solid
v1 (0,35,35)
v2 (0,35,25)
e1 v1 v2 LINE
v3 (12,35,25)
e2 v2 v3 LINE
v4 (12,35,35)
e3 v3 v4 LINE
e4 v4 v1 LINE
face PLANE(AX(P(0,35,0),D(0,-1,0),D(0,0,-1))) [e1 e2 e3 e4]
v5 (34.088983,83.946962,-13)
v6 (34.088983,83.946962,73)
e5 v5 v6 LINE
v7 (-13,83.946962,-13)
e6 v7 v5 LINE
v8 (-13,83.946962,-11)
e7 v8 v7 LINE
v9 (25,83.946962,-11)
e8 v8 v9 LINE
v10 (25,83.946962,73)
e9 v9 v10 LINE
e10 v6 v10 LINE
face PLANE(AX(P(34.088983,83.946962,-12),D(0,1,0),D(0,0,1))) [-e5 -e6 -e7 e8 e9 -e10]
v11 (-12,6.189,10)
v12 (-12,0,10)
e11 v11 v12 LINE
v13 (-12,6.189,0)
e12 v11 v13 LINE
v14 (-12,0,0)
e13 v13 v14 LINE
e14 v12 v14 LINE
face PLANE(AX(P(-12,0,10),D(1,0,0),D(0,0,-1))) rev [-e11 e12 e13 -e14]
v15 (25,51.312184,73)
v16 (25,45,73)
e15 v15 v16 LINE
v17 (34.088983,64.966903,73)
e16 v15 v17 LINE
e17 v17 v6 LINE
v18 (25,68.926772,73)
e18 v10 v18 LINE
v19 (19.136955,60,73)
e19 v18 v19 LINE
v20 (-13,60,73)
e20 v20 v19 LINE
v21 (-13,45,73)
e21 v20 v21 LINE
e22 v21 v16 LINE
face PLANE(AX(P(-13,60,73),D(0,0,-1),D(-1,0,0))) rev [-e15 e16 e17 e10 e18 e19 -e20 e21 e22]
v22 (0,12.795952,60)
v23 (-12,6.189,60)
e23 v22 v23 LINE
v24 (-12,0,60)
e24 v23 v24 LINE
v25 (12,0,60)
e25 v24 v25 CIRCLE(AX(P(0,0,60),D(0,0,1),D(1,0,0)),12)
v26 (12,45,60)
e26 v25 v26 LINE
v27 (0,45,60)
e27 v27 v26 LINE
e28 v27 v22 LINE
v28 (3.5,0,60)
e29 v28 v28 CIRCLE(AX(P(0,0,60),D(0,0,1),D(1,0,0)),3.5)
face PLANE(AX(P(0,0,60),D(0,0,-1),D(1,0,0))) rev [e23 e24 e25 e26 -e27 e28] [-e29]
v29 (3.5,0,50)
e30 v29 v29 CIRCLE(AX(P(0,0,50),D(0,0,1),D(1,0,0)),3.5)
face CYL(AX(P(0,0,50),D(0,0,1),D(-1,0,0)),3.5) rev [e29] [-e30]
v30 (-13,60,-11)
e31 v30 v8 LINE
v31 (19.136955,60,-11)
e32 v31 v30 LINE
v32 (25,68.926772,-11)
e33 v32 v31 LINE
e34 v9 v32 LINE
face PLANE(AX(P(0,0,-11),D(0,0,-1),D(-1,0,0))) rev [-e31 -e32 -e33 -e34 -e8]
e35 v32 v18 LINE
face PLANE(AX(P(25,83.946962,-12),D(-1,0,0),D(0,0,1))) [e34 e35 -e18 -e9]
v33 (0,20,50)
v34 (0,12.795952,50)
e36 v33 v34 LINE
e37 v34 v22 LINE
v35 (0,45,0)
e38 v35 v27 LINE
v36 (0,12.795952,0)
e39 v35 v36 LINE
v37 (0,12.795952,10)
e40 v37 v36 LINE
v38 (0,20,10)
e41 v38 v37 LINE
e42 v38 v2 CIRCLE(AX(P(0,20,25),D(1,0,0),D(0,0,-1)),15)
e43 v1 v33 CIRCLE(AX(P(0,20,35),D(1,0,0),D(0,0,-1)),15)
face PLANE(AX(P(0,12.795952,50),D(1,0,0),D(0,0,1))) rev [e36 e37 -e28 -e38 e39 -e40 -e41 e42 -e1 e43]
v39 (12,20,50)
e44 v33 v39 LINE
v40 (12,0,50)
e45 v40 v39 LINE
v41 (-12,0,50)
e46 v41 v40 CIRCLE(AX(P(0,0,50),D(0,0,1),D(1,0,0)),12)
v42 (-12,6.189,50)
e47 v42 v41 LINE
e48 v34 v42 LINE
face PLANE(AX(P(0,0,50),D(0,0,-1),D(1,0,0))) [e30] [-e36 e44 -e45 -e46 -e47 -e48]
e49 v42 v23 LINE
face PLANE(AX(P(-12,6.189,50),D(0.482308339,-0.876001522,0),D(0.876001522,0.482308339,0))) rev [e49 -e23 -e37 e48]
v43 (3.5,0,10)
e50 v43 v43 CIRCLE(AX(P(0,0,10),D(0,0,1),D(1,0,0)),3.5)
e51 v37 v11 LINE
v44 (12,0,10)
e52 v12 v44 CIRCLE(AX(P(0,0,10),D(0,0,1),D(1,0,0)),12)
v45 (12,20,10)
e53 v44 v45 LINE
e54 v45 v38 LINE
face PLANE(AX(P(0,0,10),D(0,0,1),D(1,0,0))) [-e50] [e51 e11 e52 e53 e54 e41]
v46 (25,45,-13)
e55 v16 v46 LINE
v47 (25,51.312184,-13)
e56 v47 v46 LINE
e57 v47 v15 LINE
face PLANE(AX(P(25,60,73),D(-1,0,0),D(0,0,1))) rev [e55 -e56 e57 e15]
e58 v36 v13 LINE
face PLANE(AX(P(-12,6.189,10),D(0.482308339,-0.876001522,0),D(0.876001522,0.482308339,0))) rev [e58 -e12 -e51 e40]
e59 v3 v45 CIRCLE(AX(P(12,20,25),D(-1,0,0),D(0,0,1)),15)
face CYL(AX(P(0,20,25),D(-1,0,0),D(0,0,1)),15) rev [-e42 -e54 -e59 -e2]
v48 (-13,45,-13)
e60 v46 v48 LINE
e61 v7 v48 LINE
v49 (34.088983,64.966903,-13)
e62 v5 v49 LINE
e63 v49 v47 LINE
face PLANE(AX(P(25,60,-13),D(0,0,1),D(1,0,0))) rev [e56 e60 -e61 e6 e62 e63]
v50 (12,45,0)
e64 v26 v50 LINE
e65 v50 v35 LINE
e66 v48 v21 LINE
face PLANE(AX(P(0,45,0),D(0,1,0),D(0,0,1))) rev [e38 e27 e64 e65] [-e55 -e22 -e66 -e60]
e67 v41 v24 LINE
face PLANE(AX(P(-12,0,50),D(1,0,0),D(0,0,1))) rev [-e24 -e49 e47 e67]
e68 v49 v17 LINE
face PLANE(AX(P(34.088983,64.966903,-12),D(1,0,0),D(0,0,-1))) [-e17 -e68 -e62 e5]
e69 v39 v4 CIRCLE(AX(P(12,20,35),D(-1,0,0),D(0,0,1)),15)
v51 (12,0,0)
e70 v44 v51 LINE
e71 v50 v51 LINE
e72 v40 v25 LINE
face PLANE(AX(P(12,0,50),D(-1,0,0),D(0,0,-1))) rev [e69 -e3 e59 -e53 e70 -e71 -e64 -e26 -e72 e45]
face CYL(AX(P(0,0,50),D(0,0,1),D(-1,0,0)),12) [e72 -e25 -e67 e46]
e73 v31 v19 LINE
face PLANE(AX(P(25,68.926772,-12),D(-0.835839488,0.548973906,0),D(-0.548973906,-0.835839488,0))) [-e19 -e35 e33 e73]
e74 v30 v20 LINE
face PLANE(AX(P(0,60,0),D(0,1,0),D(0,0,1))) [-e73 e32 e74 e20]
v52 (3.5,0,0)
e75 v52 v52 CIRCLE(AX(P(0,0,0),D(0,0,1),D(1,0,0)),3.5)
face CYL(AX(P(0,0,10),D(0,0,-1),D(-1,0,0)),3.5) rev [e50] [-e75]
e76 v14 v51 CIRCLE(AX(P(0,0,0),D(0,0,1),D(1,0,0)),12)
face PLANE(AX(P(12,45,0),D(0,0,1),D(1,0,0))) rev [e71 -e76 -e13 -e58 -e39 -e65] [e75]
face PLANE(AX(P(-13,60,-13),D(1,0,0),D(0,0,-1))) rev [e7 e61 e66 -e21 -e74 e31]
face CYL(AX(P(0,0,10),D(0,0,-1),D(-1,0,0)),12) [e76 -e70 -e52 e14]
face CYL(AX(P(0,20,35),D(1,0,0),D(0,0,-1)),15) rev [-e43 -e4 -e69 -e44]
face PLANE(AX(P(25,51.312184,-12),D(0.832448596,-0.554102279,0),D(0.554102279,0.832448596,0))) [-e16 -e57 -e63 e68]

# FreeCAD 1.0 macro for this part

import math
import FreeCAD as App
import Part
import Sketcher


def edges_at(feature, points):
    """Names of the edges that pass closest to the given points."""
    edges = feature.Shape.Edges
    near = lambda p: min(range(len(edges)), key=lambda i: edges[i].distToShape(Part.Vertex(*p))[0])
    return sorted({f"Edge{near(p) + 1}" for p in points})


def add_polygon(sketch, points):
    """Adds a closed chain of lines whose ends are joined by coincident constraints."""
    first, n = sketch.GeometryCount, len(points)
    for a, b in zip(points, points[1:] + points[:1]):
        sketch.addGeometry(Part.LineSegment(App.Vector(*a, 0), App.Vector(*b, 0)), False)
    for i in range(n):
        sketch.addConstraint(Sketcher.Constraint("Coincident", first + i, 2, first + (i + 1) % n, 1))

doc = App.newDocument("Part")
body = doc.addObject("PartDesign::Body", "Body")

sketch1 = body.newObject("Sketcher::SketchObject", "Sketch")
sketch1.AttachmentSupport = (doc.getObject("XY_Plane"), [""])
sketch1.MapMode = "FlatFace"
sketch1.addGeometry([
    Part.LineSegment(App.Vector(-12, 6.189, 0), App.Vector(-12, 0, 0)),
    Part.ArcOfCircle(Part.Circle(App.Vector(0, 0, 0), App.Vector(0, 0, 1), 12), math.radians(180), math.radians(360)),
    Part.LineSegment(App.Vector(12, 0, 0), App.Vector(12, 40, 0)),
    Part.LineSegment(App.Vector(12, 40, 0), App.Vector(0, 40, 0)),
    Part.LineSegment(App.Vector(0, 40, 0), App.Vector(0, 12.795952, 0)),
    Part.LineSegment(App.Vector(0, 12.795952, 0), App.Vector(-12, 6.189, 0)),
    Part.Circle(App.Vector(0, 0, 0), App.Vector(0, 0, 1), 3.5),
], False)
sketch1.addConstraint([
    Sketcher.Constraint("Tangent", 0, 2, 1, 1),
    Sketcher.Constraint("Tangent", 1, 2, 2, 1),
    Sketcher.Constraint("Coincident", 2, 2, 3, 1),
    Sketcher.Constraint("Coincident", 3, 2, 4, 1),
    Sketcher.Constraint("Coincident", 4, 2, 5, 1),
    Sketcher.Constraint("Coincident", 5, 2, 0, 1),
    Sketcher.Constraint("Vertical", 0),
    Sketcher.Constraint("Vertical", 2),
    Sketcher.Constraint("Horizontal", 3),
    Sketcher.Constraint("Vertical", 4),
    Sketcher.Constraint("Coincident", 1, 3, -1, 1),
    Sketcher.Constraint("Coincident", 6, 3, -1, 1),
    Sketcher.Constraint("PointOnObject", 3, 2, -2),
    Sketcher.Constraint("Diameter", 6, 7.0),
    Sketcher.Constraint("Radius", 1, 12.0),
    Sketcher.Constraint("DistanceY", 2, 1, 2, 2, 40.0),
    Sketcher.Constraint("DistanceY", 0, 2, 0, 1, 6.189),
    Sketcher.Constraint("DistanceY", 4, 2, 4, 1, 27.204048),
])
pad1 = body.newObject("PartDesign::Pad", "Pad")
pad1.Profile = sketch1
pad1.Length = 10
body2 = doc.addObject("PartDesign::Body", "Body001")

sketch2 = body2.newObject("Sketcher::SketchObject", "Sketch001")
sketch2.AttachmentSupport = (doc.getObject("XZ_Plane001"), [""])
sketch2.MapMode = "FlatFace"
sketch2.AttachmentOffset = App.Placement(App.Vector(0, 0, -40), App.Rotation())
add_polygon(sketch2, [(0, 60), (12, 60), (12, 0), (0, 0)])
sketch2.addConstraint([
    Sketcher.Constraint("Horizontal", 0),
    Sketcher.Constraint("Vertical", 1),
    Sketcher.Constraint("Horizontal", 2),
    Sketcher.Constraint("Vertical", 3),
    Sketcher.Constraint("Coincident", 2, 2, -1, 1),
    Sketcher.Constraint("DistanceX", 0, 1, 0, 2, 12.0),
    Sketcher.Constraint("DistanceY", 1, 2, 1, 1, 60.0),
])
pad2 = body2.newObject("PartDesign::Pad", "Pad001")
pad2.Profile = sketch2
pad2.Length = 5
pad2.Reversed = True
body3 = doc.addObject("PartDesign::Body", "Body002")
doc.recompute()

mirroring = doc.addObject("Part::Mirroring", "Mirroring")
mirroring.Source = body
mirroring.Base = App.Vector(0, 0, 30)
mirroring.Normal = App.Vector(0, 0, 1)
body3.BaseFeature = mirroring
doc.recompute()

boolean = body3.newObject("PartDesign::Boolean", "Boolean")
boolean.Type = "Fuse"
boolean.addObjects([body2])
doc.recompute()

boolean2 = body3.newObject("PartDesign::Boolean", "Boolean001")
boolean2.Type = "Fuse"
boolean2.addObjects([body])

sketch3 = body3.newObject("Sketcher::SketchObject", "Sketch002")
sketch3.AttachmentSupport = (doc.getObject("XZ_Plane002"), [""])
sketch3.MapMode = "FlatFace"
sketch3.AttachmentOffset = App.Placement(App.Vector(0, 0, -40), App.Rotation())
add_polygon(sketch3, [(0, 50), (0, 10), (12, 10), (12, 50)])
sketch3.addConstraint([
    Sketcher.Constraint("Vertical", 0),
    Sketcher.Constraint("Horizontal", 1),
    Sketcher.Constraint("Vertical", 2),
    Sketcher.Constraint("Horizontal", 3),
    Sketcher.Constraint("PointOnObject", 0, 2, -2),
    Sketcher.Constraint("DistanceX", 1, 1, 1, 2, 12.0),
    Sketcher.Constraint("DistanceY", 0, 2, 0, 1, 40.0),
    Sketcher.Constraint("DistanceY", -1, 1, 0, 2, 10.0),
])
pad3 = body3.newObject("PartDesign::Pad", "Pad002")
pad3.Profile = sketch3
pad3.Length = 5
doc.recompute()

fillet = body3.newObject("PartDesign::Fillet", "Fillet")
fillet.Base = (pad3, edges_at(pad3, [(6, 35, 10), (6, 35, 50)]))
fillet.Radius = 15

sketch4 = body3.newObject("Sketcher::SketchObject", "Sketch003")
sketch4.AttachmentSupport = (doc.getObject("XZ_Plane002"), [""])
sketch4.MapMode = "FlatFace"
sketch4.AttachmentOffset = App.Placement(App.Vector(0, 0, -45), App.Rotation())
add_polygon(sketch4, [(-13, -13), (-13, 73), (25, 73), (25, -13)])
sketch4.addConstraint([
    Sketcher.Constraint("Vertical", 0),
    Sketcher.Constraint("Horizontal", 1),
    Sketcher.Constraint("Vertical", 2),
    Sketcher.Constraint("Horizontal", 3),
    Sketcher.Constraint("DistanceX", 1, 1, 1, 2, 38.0),
    Sketcher.Constraint("DistanceY", 0, 1, 0, 2, 86.0),
    Sketcher.Constraint("DistanceX", 0, 2, -1, 1, 13.0),
    Sketcher.Constraint("DistanceY", -1, 1, 0, 2, 73.0),
])
pad4 = body3.newObject("PartDesign::Pad", "Pad003")
pad4.Profile = sketch4
pad4.Length = 15
pad4.Reversed = True

sketch5 = body3.newObject("Sketcher::SketchObject", "Sketch004")
sketch5.AttachmentSupport = (doc.getObject("XY_Plane002"), [""])
sketch5.MapMode = "FlatFace"
sketch5.AttachmentOffset = App.Placement(App.Vector(0, 0, 73), App.Rotation())
add_polygon(sketch5, [(25, 51.312184), (34.088983, 64.966903), (34.088983, 83.946962), (25, 83.946962), (25, 68.926772), (19.136955, 60)])
sketch5.addConstraint([
    Sketcher.Constraint("Vertical", 1),
    Sketcher.Constraint("Horizontal", 2),
    Sketcher.Constraint("Vertical", 3),
    Sketcher.Constraint("Vertical", 3, 2, 5, 2),
    Sketcher.Constraint("DistanceX", -1, 1, 2, 2, 25.0),
    Sketcher.Constraint("DistanceY", -1, 1, 4, 2, 60.0),
    Sketcher.Constraint("Distance", 5, 10.481099),
    Sketcher.Constraint("DistanceY", 1, 1, 1, 2, 18.980059),
    Sketcher.Constraint("DistanceY", 3, 2, 3, 1, 15.020191),
    Sketcher.Constraint("DistanceX", 2, 2, 2, 1, 9.088983),
    Sketcher.Constraint("DistanceY", -1, 1, 3, 2, 68.926772),
    Sketcher.Constraint("DistanceY", 5, 2, 0, 2, 13.654719),
])
pad5 = body3.newObject("PartDesign::Pad", "Pad004")
pad5.Profile = sketch5
pad5.Length = 85
pad5.Reversed = True

sketch6 = body3.newObject("Sketcher::SketchObject", "Sketch005")
sketch6.AttachmentSupport = (doc.getObject("XY_Plane002"), [""])
sketch6.MapMode = "FlatFace"
sketch6.AttachmentOffset = App.Placement(App.Vector(0, 0, -13), App.Rotation())
add_polygon(sketch6, [(34.088983, 64.966903), (25, 51.312184), (25, 45), (-13, 45), (-13, 83.946962), (34.088983, 83.946962)])
sketch6.addConstraint([
    Sketcher.Constraint("Vertical", 1),
    Sketcher.Constraint("Horizontal", 2),
    Sketcher.Constraint("Vertical", 3),
    Sketcher.Constraint("Horizontal", 4),
    Sketcher.Constraint("Vertical", 5),
    Sketcher.Constraint("DistanceX", 2, 2, 2, 1, 38.0),
    Sketcher.Constraint("DistanceX", -1, 1, 0, 2, 25.0),
    Sketcher.Constraint("DistanceY", -1, 1, 1, 2, 45.0),
    Sketcher.Constraint("DistanceY", 5, 2, 5, 1, 18.980059),
    Sketcher.Constraint("DistanceX", 4, 1, 4, 2, 47.088983),
    Sketcher.Constraint("DistanceY", 1, 2, 1, 1, 6.312184),
    Sketcher.Constraint("DistanceY", 3, 1, 3, 2, 38.946962),
])
pad6 = body3.newObject("PartDesign::Pad", "Pad005")
pad6.Profile = sketch6
pad6.Length = 2
mirroring.Visibility = False

doc.recompute()
